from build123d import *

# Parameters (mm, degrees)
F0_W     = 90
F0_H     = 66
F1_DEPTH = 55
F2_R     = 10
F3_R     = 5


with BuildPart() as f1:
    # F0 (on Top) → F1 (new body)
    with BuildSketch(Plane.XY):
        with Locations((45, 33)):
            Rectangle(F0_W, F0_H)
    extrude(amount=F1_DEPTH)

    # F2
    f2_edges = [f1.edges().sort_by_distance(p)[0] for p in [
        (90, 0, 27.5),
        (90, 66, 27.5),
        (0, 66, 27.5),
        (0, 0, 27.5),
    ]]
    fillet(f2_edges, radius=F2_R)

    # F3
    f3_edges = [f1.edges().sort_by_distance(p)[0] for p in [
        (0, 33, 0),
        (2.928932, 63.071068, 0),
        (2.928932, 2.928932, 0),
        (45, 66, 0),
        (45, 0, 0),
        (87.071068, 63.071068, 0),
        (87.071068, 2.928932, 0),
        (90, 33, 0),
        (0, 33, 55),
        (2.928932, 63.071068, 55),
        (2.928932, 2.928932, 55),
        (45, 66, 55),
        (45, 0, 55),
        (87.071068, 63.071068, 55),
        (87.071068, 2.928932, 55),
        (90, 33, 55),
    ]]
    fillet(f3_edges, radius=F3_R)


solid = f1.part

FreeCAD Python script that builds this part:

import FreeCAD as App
import Part
import Sketcher
from FreeCAD import Vector


def edges_at(feature, points):
    """Names of the edges that pass closest to the given points."""
    edges = feature.Shape.Edges
    near = lambda p: min(range(len(edges)), key=lambda i: edges[i].distToShape(Part.Vertex(*p))[0])
    return sorted({f"Edge{near(p) + 1}" for p in points})


def add_polygon(sketch, points):
    """Adds a closed chain of lines whose ends are joined by coincident constraints."""
    first, n = sketch.GeometryCount, len(points)
    for a, b in zip(points, points[1:] + points[:1]):
        sketch.addGeometry(Part.LineSegment(App.Vector(*a, 0), App.Vector(*b, 0)), False)
    for i in range(n):
        sketch.addConstraint(Sketcher.Constraint("Coincident", first + i, 2, first + (i + 1) % n, 1))

doc = App.newDocument("Part")
params = doc.addObject("Spreadsheet::Sheet", "Params")
for row, (alias, value) in enumerate([
    ("sketch1_width", "90 mm"),
    ("sketch1_height", "66 mm"),
    ("pad1_length", "55 mm"),
    ("fillet_radius", "10 mm"),
    ("fillet2_radius", "5 mm"),
], start=1):
    params.set(f"A{row}", alias)
    params.set(f"B{row}", "=" + value)
    params.setAlias(f"B{row}", alias)

body = doc.addObject("PartDesign::Body", "Body")

# Sketch on XY plane
sketch1 = body.newObject("Sketcher::SketchObject", "Sketch")
sketch1.AttachmentSupport = (doc.getObject("XY_Plane"), [""])
sketch1.MapMode = "FlatFace"
add_polygon(sketch1, [(0, 66), (0, 0), (90, 0), (90, 66)])  # lines 0-3
sketch1.addConstraint(Sketcher.Constraint("Vertical", 0))
sketch1.addConstraint(Sketcher.Constraint("Horizontal", 1))
sketch1.addConstraint(Sketcher.Constraint("Vertical", 2))
sketch1.addConstraint(Sketcher.Constraint("Horizontal", 3))
sketch1.addConstraint(Sketcher.Constraint("Coincident", 0, 2, -1, 1))
sketch1.addConstraint(Sketcher.Constraint("DistanceX", 1, 1, 1, 2, 90.0))
sketch1.addConstraint(Sketcher.Constraint("DistanceY", 0, 2, 0, 1, 66.0))
sketch1.setExpression("Constraints[9]", "Params.sketch1_width")
sketch1.setExpression("Constraints[10]", "Params.sketch1_height")
pad1 = body.newObject("PartDesign::Pad", "Pad")
pad1.Profile = sketch1
pad1.setExpression("Length", "Params.pad1_length")
doc.recompute()

fillet = body.newObject("PartDesign::Fillet", "Fillet")
fillet.Base = (pad1, edges_at(pad1, [
    (90, 0, 27.5),
    (90, 66, 27.5),
    (0, 66, 27.5),
    (0, 0, 27.5),
]))
fillet.setExpression("Radius", "Params.fillet_radius")
doc.recompute()

fillet2 = body.newObject("PartDesign::Fillet", "Fillet001")
fillet2.Base = (fillet, edges_at(fillet, [
    (0, 33, 0),
    (2.929, 63.071, 0),
    (2.929, 2.929, 0),
    (45, 66, 0),
    (45, 0, 0),
    (87.071, 63.071, 0),
    (87.071, 2.929, 0),
    (90, 33, 0),
    (0, 33, 55),
    (2.929, 63.071, 55),
    (2.929, 2.929, 55),
    (45, 66, 55),
    (45, 0, 55),
    (87.071, 63.071, 55),
    (87.071, 2.929, 55),
    (90, 33, 55),
]))
fillet2.setExpression("Radius", "Params.fillet2_radius")

doc.recompute()
